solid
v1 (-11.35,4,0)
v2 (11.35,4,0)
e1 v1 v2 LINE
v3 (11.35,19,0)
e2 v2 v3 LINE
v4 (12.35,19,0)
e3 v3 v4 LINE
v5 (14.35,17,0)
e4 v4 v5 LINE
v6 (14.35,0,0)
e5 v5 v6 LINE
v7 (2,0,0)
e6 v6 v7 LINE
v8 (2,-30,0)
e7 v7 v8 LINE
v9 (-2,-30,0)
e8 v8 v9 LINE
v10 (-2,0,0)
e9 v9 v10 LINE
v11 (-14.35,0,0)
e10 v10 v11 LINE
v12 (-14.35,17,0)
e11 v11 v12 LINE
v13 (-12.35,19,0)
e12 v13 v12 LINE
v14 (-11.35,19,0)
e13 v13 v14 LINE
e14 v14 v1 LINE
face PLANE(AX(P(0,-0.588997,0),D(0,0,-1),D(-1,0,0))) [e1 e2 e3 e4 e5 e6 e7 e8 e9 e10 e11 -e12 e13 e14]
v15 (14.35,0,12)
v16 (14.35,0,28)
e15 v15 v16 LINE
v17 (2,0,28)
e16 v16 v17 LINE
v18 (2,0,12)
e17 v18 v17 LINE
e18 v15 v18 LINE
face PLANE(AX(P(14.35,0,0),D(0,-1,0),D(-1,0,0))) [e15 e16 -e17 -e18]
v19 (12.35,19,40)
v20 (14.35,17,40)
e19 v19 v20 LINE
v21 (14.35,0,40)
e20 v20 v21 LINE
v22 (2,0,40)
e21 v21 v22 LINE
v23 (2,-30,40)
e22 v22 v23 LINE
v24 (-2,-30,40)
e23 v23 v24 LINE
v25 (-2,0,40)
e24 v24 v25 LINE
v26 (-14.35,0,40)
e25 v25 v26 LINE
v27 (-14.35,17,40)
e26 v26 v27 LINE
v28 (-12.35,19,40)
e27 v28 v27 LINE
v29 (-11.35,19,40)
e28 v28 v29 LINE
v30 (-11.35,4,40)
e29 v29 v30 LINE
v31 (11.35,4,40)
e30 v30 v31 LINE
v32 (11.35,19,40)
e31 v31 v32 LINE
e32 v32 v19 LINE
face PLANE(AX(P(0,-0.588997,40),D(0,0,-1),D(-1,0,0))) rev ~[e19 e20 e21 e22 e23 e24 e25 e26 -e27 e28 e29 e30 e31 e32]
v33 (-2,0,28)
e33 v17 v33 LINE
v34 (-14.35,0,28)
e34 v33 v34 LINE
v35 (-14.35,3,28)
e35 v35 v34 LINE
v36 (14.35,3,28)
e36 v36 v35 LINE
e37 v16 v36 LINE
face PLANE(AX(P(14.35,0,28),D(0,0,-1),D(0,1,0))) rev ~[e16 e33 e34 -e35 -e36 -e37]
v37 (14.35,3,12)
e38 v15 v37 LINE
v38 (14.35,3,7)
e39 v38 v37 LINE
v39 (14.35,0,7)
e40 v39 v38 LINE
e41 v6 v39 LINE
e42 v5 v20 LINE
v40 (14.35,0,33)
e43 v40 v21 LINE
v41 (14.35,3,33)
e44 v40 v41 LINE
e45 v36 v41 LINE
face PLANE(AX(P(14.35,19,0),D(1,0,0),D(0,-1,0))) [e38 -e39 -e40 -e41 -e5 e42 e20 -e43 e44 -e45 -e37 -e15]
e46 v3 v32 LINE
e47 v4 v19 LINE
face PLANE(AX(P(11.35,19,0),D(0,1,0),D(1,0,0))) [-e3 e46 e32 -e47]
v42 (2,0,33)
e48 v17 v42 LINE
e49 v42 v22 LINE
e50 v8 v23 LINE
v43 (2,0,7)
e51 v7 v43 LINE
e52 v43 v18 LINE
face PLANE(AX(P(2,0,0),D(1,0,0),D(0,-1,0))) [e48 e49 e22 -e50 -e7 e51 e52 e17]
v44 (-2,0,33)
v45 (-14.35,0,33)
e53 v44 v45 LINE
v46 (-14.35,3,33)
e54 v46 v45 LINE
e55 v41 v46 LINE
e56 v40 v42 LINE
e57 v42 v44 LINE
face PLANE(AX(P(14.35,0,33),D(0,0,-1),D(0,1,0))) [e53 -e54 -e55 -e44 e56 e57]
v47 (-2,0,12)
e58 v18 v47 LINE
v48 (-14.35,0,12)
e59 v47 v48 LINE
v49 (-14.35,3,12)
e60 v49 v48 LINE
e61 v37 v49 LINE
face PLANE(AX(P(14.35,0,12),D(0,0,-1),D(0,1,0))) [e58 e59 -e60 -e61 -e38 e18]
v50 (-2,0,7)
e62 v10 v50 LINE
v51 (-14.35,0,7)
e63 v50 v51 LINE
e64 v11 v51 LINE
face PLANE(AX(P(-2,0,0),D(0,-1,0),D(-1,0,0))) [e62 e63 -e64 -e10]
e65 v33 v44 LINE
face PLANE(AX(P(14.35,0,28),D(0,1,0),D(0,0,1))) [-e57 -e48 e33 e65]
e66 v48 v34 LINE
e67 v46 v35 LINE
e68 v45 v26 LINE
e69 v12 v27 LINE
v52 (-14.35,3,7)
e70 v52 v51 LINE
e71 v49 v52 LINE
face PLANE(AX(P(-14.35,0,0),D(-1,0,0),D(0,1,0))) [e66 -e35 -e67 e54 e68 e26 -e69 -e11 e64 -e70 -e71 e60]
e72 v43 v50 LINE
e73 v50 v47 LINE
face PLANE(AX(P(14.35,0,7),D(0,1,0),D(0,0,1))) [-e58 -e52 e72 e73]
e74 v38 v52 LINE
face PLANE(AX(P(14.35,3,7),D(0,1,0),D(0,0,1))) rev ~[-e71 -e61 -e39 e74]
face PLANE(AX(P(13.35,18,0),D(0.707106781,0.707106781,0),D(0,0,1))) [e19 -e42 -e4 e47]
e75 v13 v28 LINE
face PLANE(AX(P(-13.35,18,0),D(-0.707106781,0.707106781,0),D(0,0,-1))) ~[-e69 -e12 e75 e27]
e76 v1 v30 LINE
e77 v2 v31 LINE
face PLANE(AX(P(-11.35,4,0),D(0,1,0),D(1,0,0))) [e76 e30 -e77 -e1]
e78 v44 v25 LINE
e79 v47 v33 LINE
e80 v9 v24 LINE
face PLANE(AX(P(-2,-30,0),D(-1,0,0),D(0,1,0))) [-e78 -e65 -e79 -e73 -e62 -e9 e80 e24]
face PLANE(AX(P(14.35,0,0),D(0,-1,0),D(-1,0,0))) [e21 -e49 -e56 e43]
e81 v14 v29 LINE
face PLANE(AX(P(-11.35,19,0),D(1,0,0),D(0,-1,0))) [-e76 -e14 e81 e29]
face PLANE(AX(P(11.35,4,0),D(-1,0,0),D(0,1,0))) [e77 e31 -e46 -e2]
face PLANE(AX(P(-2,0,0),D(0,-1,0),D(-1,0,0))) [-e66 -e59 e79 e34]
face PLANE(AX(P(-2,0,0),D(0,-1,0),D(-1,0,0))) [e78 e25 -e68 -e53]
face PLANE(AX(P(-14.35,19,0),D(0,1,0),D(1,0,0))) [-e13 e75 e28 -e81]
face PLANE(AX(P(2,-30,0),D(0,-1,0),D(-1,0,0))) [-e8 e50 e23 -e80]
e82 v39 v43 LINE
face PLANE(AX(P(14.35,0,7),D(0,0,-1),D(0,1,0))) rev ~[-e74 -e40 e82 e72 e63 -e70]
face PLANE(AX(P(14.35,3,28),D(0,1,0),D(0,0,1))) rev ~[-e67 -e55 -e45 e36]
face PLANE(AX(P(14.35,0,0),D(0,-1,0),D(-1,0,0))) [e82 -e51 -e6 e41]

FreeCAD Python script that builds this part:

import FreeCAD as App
import Part
import Sketcher
from FreeCAD import Vector
Q = App.Units.Quantity


def edges_at(feature, points):
    """Names of the edges that pass closest to the given points."""
    edges = feature.Shape.Edges
    near = lambda p: min(range(len(edges)), key=lambda i: edges[i].distToShape(Part.Vertex(*p))[0])
    return sorted({f"Edge{near(p) + 1}" for p in points})


def add_polygon(sketch, points):
    """Adds a closed chain of lines whose ends are joined by coincident constraints."""
    first, n = sketch.GeometryCount, len(points)
    for a, b in zip(points, points[1:] + points[:1]):
        sketch.addGeometry(Part.LineSegment(App.Vector(*a, 0), App.Vector(*b, 0)), False)
    for i in range(n):
        sketch.addConstraint(Sketcher.Constraint("Coincident", first + i, 2, first + (i + 1) % n, 1))

doc = App.newDocument("Part")
body = doc.addObject("PartDesign::Body", "Body")

# Sketch on XY plane
sketch1 = body.newObject("Sketcher::SketchObject", "Sketch")
sketch1.AttachmentSupport = (doc.getObject("XY_Plane"), [""])
sketch1.MapMode = "FlatFace"
add_polygon(sketch1, [(-11.35, 19), (-14.35, 19), (-14.35, 0), (-2, 0), (-2, -30), (2, -30), (2, 0), (14.35, 0), (14.35, 19), (11.35, 19), (11.35, 4), (-11.35, 4)])  # lines 0-11
sketch1.addConstraint([
    Sketcher.Constraint("Horizontal", 0),
    Sketcher.Constraint("Vertical", 1),
    Sketcher.Constraint("Horizontal", 2),
    Sketcher.Constraint("Vertical", 3),
    Sketcher.Constraint("Horizontal", 4),
    Sketcher.Constraint("Vertical", 5),
    Sketcher.Constraint("Horizontal", 6),
    Sketcher.Constraint("Vertical", 7),
    Sketcher.Constraint("Horizontal", 8),
    Sketcher.Constraint("Vertical", 9),
    Sketcher.Constraint("Horizontal", 10),
    Sketcher.Constraint("Vertical", 11),
    Sketcher.Constraint("Symmetric", 2, 2, 5, 2, -1, 1),
    Sketcher.Constraint("Symmetric", 1, 2, 6, 2, -2),
    Sketcher.Constraint("Symmetric", 8, 2, 11, 2, -2),
    Sketcher.Constraint("DistanceX", 0, 2, 0, 1, Q("3 mm")),
    Sketcher.Constraint("DistanceX", 4, 1, 4, 2, Q("4 mm")),
    Sketcher.Constraint("DistanceY", 1, 2, 1, 1, Q("19 mm")),
    Sketcher.Constraint("DistanceY", 3, 2, 3, 1, Q("30 mm")),
    Sketcher.Constraint("DistanceY", 9, 2, 9, 1, Q("15 mm")),
    Sketcher.Constraint("DistanceX", 10, 2, 10, 1, Q("22.7 mm")),
])
pad1 = body.newObject("PartDesign::Pad", "Pad")
pad1.Profile = sketch1
pad1.Length = 40

# Sketch on YZ plane
sketch2 = body.newObject("Sketcher::SketchObject", "Sketch001")
sketch2.AttachmentSupport = (doc.getObject("YZ_Plane"), [""])
sketch2.MapMode = "FlatFace"
sketch2.AttachmentOffset = App.Placement(Vector(0, 0, 14.35), App.Rotation())
add_polygon(sketch2, [(0, 33), (0, 28), (3, 28), (3, 33)])  # lines 0-3
add_polygon(sketch2, [(0, 12), (0, 7), (3, 7), (3, 12)])  # lines 4-7
sketch2.addConstraint([
    Sketcher.Constraint("Vertical", 0),
    Sketcher.Constraint("Horizontal", 1),
    Sketcher.Constraint("Vertical", 2),
    Sketcher.Constraint("Horizontal", 3),
    Sketcher.Constraint("Vertical", 4),
    Sketcher.Constraint("Horizontal", 5),
    Sketcher.Constraint("Vertical", 6),
    Sketcher.Constraint("Horizontal", 7),
    Sketcher.Constraint("PointOnObject", 0, 2, -2),
    Sketcher.Constraint("PointOnObject", 4, 2, -2),
    Sketcher.Constraint("Vertical", 2, 2, 5, 2),
    Sketcher.Constraint("Equal", 2, 4),
    Sketcher.Constraint("DistanceX", 1, 1, 1, 2, Q("3 mm")),
    Sketcher.Constraint("DistanceY", 0, 2, 0, 1, Q("5 mm")),
    Sketcher.Constraint("DistanceY", -1, 1, 0, 2, Q("28 mm")),
    Sketcher.Constraint("DistanceY", -1, 1, 4, 2, Q("7 mm")),
])
pocket1 = body.newObject("PartDesign::Pocket", "Pocket")
pocket1.Profile = sketch2
pocket1.Type = "ThroughAll"
doc.recompute()

chamfer = body.newObject("PartDesign::Chamfer", "Chamfer")
chamfer.Base = (pocket1, edges_at(pocket1, [(-14.35, 19, 20), (14.35, 19, 20)]))
chamfer.Size = 2

doc.recompute()
